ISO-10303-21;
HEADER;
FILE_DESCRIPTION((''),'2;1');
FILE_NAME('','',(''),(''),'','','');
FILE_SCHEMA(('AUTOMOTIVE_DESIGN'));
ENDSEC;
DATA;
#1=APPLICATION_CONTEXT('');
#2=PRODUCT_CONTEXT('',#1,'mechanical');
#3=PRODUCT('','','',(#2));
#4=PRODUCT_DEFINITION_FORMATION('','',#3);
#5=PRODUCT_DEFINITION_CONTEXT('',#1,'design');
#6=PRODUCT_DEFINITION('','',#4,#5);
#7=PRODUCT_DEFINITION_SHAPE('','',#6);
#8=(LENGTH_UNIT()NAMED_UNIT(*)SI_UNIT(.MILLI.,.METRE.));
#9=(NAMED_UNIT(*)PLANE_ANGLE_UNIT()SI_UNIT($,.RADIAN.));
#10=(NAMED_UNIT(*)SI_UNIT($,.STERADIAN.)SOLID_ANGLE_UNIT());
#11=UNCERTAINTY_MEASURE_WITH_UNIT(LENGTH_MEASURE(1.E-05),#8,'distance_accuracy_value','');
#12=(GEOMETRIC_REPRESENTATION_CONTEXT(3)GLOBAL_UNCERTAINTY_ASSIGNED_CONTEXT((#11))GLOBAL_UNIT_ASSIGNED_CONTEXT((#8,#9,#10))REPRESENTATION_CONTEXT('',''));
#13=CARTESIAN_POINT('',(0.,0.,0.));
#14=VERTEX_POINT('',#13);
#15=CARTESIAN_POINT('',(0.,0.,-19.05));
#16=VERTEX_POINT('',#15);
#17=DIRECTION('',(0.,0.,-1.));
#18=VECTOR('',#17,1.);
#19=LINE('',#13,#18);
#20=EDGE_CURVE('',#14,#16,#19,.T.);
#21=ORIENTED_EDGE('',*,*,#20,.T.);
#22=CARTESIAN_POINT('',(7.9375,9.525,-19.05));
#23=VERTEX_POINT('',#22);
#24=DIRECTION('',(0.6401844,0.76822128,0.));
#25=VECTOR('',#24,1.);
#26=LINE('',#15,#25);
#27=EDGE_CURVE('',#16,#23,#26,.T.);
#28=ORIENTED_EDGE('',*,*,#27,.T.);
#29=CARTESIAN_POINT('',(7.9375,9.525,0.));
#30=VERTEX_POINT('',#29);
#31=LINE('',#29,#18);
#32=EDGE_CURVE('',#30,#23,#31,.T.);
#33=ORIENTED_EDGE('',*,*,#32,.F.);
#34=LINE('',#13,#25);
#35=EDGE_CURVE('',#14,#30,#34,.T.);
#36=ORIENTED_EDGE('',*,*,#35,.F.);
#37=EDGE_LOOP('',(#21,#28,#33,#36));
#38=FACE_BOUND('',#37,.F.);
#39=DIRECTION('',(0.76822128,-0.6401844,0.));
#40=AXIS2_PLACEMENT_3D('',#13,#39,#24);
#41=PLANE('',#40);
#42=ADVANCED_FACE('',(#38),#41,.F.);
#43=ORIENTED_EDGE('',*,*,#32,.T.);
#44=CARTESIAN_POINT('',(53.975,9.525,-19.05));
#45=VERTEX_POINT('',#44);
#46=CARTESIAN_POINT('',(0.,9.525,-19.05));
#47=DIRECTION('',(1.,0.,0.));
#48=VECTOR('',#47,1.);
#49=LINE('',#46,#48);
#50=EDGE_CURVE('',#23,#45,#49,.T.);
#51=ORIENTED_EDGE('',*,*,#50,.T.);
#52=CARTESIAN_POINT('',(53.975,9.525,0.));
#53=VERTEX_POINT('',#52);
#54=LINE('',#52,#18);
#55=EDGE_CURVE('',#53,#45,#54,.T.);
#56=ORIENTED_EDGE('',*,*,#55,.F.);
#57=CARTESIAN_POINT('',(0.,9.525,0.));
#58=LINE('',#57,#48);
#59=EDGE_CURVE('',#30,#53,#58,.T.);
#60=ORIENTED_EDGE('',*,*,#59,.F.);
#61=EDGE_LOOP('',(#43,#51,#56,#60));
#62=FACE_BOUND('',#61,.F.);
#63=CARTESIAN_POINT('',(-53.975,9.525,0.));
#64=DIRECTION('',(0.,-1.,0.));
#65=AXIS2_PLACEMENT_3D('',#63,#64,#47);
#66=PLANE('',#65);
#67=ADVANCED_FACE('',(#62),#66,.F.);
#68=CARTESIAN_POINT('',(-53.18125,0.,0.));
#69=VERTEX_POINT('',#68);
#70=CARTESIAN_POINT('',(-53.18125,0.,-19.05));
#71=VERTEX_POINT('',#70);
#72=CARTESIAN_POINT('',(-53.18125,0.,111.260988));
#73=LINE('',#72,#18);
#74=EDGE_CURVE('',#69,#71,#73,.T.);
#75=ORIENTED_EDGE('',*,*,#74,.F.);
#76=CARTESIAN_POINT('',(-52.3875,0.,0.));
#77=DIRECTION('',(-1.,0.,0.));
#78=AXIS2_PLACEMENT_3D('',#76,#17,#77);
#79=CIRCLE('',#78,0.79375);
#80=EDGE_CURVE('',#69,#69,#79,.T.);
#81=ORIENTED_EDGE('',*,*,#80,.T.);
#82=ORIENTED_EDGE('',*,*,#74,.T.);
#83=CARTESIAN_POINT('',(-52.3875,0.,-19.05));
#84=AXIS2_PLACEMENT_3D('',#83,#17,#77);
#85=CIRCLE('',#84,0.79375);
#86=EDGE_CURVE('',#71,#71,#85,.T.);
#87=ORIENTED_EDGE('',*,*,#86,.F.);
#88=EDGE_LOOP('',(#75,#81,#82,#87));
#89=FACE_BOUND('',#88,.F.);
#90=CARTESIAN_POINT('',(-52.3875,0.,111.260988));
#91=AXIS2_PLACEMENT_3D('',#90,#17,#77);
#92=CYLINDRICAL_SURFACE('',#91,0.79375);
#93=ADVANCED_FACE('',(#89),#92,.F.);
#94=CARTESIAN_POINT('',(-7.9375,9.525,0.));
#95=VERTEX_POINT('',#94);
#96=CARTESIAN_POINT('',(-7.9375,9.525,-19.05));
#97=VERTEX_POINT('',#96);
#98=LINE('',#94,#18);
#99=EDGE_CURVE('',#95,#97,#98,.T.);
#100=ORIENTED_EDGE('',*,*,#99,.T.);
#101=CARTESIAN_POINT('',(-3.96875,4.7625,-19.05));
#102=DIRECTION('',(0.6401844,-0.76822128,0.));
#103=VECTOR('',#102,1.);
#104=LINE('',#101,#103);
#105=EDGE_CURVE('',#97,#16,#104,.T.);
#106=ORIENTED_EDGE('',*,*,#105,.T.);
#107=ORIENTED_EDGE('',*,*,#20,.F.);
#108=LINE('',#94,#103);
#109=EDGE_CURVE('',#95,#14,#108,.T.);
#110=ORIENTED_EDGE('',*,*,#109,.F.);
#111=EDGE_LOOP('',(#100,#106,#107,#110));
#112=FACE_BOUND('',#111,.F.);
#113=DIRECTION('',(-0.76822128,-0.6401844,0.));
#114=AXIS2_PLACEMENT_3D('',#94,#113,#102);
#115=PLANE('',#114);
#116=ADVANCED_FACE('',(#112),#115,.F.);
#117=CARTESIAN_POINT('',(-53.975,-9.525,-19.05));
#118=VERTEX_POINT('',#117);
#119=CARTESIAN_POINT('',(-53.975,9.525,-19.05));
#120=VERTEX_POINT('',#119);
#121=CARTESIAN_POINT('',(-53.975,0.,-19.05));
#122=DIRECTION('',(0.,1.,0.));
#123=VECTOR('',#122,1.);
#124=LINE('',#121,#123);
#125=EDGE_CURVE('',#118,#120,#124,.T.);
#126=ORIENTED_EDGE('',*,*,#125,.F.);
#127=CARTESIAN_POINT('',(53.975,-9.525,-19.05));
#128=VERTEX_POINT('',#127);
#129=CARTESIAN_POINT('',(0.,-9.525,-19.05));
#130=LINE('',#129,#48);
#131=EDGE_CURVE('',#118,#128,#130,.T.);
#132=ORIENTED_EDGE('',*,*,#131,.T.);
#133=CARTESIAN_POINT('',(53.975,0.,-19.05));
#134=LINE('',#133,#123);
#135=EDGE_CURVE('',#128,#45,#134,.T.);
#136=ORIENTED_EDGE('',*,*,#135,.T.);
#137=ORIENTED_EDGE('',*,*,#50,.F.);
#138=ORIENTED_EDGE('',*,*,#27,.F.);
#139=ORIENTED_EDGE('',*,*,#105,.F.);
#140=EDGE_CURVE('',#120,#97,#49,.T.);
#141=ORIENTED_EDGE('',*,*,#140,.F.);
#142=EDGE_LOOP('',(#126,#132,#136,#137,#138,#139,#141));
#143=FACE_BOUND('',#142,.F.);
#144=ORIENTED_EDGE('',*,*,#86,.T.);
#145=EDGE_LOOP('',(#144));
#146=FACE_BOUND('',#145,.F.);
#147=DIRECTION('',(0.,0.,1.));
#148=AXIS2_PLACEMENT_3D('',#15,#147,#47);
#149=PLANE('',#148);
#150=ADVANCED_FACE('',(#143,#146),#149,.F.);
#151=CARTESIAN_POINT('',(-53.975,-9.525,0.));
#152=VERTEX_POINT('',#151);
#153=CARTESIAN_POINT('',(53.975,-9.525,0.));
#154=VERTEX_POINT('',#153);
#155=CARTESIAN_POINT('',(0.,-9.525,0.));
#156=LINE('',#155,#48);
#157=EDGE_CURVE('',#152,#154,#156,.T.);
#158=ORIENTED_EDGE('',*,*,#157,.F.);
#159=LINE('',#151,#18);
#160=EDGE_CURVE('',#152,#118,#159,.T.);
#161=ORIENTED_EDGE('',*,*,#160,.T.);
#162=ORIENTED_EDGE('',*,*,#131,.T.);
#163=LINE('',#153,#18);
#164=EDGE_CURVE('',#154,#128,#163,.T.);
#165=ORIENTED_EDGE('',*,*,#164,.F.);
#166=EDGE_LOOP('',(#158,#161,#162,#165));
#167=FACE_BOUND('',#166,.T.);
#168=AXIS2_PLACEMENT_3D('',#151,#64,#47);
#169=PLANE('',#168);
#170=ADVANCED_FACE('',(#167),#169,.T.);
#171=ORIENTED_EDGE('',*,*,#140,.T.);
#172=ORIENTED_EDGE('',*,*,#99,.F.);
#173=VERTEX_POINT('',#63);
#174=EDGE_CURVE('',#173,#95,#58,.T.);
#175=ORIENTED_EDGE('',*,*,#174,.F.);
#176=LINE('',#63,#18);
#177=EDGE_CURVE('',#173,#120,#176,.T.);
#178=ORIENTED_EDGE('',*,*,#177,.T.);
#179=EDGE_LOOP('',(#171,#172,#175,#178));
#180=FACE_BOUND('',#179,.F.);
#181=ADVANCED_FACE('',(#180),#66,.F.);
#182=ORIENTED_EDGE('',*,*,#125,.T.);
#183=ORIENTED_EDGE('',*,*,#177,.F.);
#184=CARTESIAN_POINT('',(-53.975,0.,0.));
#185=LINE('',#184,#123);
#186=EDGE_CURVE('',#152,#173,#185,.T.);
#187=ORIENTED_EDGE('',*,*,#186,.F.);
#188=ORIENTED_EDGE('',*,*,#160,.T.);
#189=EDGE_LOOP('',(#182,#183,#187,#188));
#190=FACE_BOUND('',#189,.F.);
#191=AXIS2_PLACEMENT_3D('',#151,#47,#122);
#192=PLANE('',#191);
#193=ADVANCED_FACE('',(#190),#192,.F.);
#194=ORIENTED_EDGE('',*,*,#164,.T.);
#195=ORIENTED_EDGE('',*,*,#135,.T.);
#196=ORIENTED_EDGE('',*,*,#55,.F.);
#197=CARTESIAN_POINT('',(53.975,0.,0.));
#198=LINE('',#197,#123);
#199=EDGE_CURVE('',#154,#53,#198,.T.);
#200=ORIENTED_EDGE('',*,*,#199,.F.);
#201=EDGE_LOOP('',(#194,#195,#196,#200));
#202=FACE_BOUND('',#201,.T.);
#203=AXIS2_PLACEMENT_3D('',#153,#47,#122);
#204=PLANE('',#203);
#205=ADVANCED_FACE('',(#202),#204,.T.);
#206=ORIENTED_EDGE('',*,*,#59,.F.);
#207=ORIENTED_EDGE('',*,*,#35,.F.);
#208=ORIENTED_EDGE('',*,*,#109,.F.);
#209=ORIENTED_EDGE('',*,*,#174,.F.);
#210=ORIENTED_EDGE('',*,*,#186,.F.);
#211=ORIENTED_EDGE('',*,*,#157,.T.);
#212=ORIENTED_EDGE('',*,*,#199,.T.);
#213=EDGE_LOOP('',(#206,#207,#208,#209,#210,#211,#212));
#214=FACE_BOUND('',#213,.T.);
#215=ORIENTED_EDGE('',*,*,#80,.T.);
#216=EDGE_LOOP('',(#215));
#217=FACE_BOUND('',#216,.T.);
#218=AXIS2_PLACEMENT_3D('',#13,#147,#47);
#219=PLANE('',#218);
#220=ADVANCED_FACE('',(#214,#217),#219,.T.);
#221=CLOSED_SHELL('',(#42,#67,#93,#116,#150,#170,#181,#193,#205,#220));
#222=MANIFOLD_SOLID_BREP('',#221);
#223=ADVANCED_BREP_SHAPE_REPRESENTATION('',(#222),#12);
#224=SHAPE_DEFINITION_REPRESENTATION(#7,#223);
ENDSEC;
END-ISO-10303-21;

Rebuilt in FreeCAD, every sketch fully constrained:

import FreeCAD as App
import Part
import Sketcher

V = App.Vector
Q = App.Units.Quantity


def add_polygon(sketch, points):
    """Adds a closed chain of lines whose ends are joined by coincident constraints."""
    first, n = sketch.GeometryCount, len(points)
    for a, b in zip(points, points[1:] + points[:1]):
        sketch.addGeometry(Part.LineSegment(App.Vector(*a, 0), App.Vector(*b, 0)), False)
    for i in range(n):
        sketch.addConstraint(Sketcher.Constraint("Coincident", first + i, 2, first + (i + 1) % n, 1))

doc = App.newDocument("Part")
params = doc.addObject("Spreadsheet::Sheet", "Params")
for row, (alias, value) in enumerate([
    ("sketch1_width", "4.25 in"),
    ("sketch1_height", "0.75 in"),
    ("pad1_length", "0.75 in"),
    ("sketch2_width", "0.625 in"),
    ("pocket1_length", "1 in"),
    ("sketch3_diameter", "0.0625 in"),
    ("hole_diameter", "0.0625 in"),
], start=1):
    params.set(f"A{row}", alias)
    params.set(f"B{row}", "=" + value)
    params.setAlias(f"B{row}", alias)

body = doc.addObject("PartDesign::Body", "Body")

# Sketch on XY plane
sketch1 = body.newObject("Sketcher::SketchObject", "Sketch")
sketch1.AttachmentSupport = (doc.getObject("XY_Plane"), [""])
sketch1.MapMode = "FlatFace"
add_polygon(sketch1, [(-54, 10), (-54, -10), (54, -10), (54, 10)])  # lines 0-3
sketch1.addConstraint(Sketcher.Constraint("Vertical", 0))
sketch1.addConstraint(Sketcher.Constraint("Horizontal", 1))
sketch1.addConstraint(Sketcher.Constraint("Vertical", 2))
sketch1.addConstraint(Sketcher.Constraint("Horizontal", 3))
sketch1.addConstraint(Sketcher.Constraint("Symmetric", 0, 2, 2, 2, -1, 1))
sketch1.addConstraint(Sketcher.Constraint("DistanceX", 1, 1, 1, 2, Q("4.25 in")))
sketch1.addConstraint(Sketcher.Constraint("DistanceY", 0, 2, 0, 1, Q("0.75 in")))
sketch1.setExpression("Constraints[9]", "Params.sketch1_width")
sketch1.setExpression("Constraints[10]", "Params.sketch1_height")
pad1 = body.newObject("PartDesign::Pad", "Pad")
pad1.Profile = sketch1
pad1.setExpression("Length", "Params.pad1_length")
pad1.Reversed = True

# Sketch on XY plane
sketch2 = body.newObject("Sketcher::SketchObject", "Sketch001")
sketch2.AttachmentSupport = (doc.getObject("XY_Plane"), [""])
sketch2.MapMode = "FlatFace"
add_polygon(sketch2, [(-8, 10), (0, 0), (8, 10)])  # lines 0-2
sketch2.addConstraint(Sketcher.Constraint("Horizontal", 2))
sketch2.addConstraint(Sketcher.Constraint("Coincident", 0, 2, -1, 1))
sketch2.addConstraint(Sketcher.Constraint("Equal", 0, 1))
sketch2.addConstraint(Sketcher.Constraint("DistanceX", 2, 2, 2, 1, Q("0.625 in")))
sketch2.addConstraint(Sketcher.Constraint("DistanceY", -1, 1, 1, 2, Q("0.375 in")))
sketch2.setExpression("Constraints[6]", "Params.sketch2_width")
pocket1 = body.newObject("PartDesign::Pocket", "Pocket")
pocket1.Profile = sketch2
pocket1.setExpression("Length", "Params.pocket1_length")

# Sketch on XY plane
sketch3 = body.newObject("Sketcher::SketchObject", "Sketch002")
sketch3.AttachmentSupport = (doc.getObject("XY_Plane"), [""])
sketch3.MapMode = "FlatFace"
sketch3.addGeometry(Part.Circle(V(-52.4, 0, 0), V(0, 0, 1), 0.8), False)
sketch3.addConstraint(Sketcher.Constraint("PointOnObject", 0, 3, -1))
sketch3.addConstraint(Sketcher.Constraint("Diameter", 0, Q("0.0625 in")))
sketch3.addConstraint(Sketcher.Constraint("DistanceX", 0, 3, -1, 1, Q("2.0625 in")))
sketch3.setExpression("Constraints[1]", "Params.sketch3_diameter")
doc.recompute()
hole = body.newObject("PartDesign::Hole", "Hole")
hole.Profile = sketch3
hole.ThreadType = "None"
hole.setExpression("Diameter", "Params.hole_diameter")
hole.DepthType = "ThroughAll"

doc.recompute()
